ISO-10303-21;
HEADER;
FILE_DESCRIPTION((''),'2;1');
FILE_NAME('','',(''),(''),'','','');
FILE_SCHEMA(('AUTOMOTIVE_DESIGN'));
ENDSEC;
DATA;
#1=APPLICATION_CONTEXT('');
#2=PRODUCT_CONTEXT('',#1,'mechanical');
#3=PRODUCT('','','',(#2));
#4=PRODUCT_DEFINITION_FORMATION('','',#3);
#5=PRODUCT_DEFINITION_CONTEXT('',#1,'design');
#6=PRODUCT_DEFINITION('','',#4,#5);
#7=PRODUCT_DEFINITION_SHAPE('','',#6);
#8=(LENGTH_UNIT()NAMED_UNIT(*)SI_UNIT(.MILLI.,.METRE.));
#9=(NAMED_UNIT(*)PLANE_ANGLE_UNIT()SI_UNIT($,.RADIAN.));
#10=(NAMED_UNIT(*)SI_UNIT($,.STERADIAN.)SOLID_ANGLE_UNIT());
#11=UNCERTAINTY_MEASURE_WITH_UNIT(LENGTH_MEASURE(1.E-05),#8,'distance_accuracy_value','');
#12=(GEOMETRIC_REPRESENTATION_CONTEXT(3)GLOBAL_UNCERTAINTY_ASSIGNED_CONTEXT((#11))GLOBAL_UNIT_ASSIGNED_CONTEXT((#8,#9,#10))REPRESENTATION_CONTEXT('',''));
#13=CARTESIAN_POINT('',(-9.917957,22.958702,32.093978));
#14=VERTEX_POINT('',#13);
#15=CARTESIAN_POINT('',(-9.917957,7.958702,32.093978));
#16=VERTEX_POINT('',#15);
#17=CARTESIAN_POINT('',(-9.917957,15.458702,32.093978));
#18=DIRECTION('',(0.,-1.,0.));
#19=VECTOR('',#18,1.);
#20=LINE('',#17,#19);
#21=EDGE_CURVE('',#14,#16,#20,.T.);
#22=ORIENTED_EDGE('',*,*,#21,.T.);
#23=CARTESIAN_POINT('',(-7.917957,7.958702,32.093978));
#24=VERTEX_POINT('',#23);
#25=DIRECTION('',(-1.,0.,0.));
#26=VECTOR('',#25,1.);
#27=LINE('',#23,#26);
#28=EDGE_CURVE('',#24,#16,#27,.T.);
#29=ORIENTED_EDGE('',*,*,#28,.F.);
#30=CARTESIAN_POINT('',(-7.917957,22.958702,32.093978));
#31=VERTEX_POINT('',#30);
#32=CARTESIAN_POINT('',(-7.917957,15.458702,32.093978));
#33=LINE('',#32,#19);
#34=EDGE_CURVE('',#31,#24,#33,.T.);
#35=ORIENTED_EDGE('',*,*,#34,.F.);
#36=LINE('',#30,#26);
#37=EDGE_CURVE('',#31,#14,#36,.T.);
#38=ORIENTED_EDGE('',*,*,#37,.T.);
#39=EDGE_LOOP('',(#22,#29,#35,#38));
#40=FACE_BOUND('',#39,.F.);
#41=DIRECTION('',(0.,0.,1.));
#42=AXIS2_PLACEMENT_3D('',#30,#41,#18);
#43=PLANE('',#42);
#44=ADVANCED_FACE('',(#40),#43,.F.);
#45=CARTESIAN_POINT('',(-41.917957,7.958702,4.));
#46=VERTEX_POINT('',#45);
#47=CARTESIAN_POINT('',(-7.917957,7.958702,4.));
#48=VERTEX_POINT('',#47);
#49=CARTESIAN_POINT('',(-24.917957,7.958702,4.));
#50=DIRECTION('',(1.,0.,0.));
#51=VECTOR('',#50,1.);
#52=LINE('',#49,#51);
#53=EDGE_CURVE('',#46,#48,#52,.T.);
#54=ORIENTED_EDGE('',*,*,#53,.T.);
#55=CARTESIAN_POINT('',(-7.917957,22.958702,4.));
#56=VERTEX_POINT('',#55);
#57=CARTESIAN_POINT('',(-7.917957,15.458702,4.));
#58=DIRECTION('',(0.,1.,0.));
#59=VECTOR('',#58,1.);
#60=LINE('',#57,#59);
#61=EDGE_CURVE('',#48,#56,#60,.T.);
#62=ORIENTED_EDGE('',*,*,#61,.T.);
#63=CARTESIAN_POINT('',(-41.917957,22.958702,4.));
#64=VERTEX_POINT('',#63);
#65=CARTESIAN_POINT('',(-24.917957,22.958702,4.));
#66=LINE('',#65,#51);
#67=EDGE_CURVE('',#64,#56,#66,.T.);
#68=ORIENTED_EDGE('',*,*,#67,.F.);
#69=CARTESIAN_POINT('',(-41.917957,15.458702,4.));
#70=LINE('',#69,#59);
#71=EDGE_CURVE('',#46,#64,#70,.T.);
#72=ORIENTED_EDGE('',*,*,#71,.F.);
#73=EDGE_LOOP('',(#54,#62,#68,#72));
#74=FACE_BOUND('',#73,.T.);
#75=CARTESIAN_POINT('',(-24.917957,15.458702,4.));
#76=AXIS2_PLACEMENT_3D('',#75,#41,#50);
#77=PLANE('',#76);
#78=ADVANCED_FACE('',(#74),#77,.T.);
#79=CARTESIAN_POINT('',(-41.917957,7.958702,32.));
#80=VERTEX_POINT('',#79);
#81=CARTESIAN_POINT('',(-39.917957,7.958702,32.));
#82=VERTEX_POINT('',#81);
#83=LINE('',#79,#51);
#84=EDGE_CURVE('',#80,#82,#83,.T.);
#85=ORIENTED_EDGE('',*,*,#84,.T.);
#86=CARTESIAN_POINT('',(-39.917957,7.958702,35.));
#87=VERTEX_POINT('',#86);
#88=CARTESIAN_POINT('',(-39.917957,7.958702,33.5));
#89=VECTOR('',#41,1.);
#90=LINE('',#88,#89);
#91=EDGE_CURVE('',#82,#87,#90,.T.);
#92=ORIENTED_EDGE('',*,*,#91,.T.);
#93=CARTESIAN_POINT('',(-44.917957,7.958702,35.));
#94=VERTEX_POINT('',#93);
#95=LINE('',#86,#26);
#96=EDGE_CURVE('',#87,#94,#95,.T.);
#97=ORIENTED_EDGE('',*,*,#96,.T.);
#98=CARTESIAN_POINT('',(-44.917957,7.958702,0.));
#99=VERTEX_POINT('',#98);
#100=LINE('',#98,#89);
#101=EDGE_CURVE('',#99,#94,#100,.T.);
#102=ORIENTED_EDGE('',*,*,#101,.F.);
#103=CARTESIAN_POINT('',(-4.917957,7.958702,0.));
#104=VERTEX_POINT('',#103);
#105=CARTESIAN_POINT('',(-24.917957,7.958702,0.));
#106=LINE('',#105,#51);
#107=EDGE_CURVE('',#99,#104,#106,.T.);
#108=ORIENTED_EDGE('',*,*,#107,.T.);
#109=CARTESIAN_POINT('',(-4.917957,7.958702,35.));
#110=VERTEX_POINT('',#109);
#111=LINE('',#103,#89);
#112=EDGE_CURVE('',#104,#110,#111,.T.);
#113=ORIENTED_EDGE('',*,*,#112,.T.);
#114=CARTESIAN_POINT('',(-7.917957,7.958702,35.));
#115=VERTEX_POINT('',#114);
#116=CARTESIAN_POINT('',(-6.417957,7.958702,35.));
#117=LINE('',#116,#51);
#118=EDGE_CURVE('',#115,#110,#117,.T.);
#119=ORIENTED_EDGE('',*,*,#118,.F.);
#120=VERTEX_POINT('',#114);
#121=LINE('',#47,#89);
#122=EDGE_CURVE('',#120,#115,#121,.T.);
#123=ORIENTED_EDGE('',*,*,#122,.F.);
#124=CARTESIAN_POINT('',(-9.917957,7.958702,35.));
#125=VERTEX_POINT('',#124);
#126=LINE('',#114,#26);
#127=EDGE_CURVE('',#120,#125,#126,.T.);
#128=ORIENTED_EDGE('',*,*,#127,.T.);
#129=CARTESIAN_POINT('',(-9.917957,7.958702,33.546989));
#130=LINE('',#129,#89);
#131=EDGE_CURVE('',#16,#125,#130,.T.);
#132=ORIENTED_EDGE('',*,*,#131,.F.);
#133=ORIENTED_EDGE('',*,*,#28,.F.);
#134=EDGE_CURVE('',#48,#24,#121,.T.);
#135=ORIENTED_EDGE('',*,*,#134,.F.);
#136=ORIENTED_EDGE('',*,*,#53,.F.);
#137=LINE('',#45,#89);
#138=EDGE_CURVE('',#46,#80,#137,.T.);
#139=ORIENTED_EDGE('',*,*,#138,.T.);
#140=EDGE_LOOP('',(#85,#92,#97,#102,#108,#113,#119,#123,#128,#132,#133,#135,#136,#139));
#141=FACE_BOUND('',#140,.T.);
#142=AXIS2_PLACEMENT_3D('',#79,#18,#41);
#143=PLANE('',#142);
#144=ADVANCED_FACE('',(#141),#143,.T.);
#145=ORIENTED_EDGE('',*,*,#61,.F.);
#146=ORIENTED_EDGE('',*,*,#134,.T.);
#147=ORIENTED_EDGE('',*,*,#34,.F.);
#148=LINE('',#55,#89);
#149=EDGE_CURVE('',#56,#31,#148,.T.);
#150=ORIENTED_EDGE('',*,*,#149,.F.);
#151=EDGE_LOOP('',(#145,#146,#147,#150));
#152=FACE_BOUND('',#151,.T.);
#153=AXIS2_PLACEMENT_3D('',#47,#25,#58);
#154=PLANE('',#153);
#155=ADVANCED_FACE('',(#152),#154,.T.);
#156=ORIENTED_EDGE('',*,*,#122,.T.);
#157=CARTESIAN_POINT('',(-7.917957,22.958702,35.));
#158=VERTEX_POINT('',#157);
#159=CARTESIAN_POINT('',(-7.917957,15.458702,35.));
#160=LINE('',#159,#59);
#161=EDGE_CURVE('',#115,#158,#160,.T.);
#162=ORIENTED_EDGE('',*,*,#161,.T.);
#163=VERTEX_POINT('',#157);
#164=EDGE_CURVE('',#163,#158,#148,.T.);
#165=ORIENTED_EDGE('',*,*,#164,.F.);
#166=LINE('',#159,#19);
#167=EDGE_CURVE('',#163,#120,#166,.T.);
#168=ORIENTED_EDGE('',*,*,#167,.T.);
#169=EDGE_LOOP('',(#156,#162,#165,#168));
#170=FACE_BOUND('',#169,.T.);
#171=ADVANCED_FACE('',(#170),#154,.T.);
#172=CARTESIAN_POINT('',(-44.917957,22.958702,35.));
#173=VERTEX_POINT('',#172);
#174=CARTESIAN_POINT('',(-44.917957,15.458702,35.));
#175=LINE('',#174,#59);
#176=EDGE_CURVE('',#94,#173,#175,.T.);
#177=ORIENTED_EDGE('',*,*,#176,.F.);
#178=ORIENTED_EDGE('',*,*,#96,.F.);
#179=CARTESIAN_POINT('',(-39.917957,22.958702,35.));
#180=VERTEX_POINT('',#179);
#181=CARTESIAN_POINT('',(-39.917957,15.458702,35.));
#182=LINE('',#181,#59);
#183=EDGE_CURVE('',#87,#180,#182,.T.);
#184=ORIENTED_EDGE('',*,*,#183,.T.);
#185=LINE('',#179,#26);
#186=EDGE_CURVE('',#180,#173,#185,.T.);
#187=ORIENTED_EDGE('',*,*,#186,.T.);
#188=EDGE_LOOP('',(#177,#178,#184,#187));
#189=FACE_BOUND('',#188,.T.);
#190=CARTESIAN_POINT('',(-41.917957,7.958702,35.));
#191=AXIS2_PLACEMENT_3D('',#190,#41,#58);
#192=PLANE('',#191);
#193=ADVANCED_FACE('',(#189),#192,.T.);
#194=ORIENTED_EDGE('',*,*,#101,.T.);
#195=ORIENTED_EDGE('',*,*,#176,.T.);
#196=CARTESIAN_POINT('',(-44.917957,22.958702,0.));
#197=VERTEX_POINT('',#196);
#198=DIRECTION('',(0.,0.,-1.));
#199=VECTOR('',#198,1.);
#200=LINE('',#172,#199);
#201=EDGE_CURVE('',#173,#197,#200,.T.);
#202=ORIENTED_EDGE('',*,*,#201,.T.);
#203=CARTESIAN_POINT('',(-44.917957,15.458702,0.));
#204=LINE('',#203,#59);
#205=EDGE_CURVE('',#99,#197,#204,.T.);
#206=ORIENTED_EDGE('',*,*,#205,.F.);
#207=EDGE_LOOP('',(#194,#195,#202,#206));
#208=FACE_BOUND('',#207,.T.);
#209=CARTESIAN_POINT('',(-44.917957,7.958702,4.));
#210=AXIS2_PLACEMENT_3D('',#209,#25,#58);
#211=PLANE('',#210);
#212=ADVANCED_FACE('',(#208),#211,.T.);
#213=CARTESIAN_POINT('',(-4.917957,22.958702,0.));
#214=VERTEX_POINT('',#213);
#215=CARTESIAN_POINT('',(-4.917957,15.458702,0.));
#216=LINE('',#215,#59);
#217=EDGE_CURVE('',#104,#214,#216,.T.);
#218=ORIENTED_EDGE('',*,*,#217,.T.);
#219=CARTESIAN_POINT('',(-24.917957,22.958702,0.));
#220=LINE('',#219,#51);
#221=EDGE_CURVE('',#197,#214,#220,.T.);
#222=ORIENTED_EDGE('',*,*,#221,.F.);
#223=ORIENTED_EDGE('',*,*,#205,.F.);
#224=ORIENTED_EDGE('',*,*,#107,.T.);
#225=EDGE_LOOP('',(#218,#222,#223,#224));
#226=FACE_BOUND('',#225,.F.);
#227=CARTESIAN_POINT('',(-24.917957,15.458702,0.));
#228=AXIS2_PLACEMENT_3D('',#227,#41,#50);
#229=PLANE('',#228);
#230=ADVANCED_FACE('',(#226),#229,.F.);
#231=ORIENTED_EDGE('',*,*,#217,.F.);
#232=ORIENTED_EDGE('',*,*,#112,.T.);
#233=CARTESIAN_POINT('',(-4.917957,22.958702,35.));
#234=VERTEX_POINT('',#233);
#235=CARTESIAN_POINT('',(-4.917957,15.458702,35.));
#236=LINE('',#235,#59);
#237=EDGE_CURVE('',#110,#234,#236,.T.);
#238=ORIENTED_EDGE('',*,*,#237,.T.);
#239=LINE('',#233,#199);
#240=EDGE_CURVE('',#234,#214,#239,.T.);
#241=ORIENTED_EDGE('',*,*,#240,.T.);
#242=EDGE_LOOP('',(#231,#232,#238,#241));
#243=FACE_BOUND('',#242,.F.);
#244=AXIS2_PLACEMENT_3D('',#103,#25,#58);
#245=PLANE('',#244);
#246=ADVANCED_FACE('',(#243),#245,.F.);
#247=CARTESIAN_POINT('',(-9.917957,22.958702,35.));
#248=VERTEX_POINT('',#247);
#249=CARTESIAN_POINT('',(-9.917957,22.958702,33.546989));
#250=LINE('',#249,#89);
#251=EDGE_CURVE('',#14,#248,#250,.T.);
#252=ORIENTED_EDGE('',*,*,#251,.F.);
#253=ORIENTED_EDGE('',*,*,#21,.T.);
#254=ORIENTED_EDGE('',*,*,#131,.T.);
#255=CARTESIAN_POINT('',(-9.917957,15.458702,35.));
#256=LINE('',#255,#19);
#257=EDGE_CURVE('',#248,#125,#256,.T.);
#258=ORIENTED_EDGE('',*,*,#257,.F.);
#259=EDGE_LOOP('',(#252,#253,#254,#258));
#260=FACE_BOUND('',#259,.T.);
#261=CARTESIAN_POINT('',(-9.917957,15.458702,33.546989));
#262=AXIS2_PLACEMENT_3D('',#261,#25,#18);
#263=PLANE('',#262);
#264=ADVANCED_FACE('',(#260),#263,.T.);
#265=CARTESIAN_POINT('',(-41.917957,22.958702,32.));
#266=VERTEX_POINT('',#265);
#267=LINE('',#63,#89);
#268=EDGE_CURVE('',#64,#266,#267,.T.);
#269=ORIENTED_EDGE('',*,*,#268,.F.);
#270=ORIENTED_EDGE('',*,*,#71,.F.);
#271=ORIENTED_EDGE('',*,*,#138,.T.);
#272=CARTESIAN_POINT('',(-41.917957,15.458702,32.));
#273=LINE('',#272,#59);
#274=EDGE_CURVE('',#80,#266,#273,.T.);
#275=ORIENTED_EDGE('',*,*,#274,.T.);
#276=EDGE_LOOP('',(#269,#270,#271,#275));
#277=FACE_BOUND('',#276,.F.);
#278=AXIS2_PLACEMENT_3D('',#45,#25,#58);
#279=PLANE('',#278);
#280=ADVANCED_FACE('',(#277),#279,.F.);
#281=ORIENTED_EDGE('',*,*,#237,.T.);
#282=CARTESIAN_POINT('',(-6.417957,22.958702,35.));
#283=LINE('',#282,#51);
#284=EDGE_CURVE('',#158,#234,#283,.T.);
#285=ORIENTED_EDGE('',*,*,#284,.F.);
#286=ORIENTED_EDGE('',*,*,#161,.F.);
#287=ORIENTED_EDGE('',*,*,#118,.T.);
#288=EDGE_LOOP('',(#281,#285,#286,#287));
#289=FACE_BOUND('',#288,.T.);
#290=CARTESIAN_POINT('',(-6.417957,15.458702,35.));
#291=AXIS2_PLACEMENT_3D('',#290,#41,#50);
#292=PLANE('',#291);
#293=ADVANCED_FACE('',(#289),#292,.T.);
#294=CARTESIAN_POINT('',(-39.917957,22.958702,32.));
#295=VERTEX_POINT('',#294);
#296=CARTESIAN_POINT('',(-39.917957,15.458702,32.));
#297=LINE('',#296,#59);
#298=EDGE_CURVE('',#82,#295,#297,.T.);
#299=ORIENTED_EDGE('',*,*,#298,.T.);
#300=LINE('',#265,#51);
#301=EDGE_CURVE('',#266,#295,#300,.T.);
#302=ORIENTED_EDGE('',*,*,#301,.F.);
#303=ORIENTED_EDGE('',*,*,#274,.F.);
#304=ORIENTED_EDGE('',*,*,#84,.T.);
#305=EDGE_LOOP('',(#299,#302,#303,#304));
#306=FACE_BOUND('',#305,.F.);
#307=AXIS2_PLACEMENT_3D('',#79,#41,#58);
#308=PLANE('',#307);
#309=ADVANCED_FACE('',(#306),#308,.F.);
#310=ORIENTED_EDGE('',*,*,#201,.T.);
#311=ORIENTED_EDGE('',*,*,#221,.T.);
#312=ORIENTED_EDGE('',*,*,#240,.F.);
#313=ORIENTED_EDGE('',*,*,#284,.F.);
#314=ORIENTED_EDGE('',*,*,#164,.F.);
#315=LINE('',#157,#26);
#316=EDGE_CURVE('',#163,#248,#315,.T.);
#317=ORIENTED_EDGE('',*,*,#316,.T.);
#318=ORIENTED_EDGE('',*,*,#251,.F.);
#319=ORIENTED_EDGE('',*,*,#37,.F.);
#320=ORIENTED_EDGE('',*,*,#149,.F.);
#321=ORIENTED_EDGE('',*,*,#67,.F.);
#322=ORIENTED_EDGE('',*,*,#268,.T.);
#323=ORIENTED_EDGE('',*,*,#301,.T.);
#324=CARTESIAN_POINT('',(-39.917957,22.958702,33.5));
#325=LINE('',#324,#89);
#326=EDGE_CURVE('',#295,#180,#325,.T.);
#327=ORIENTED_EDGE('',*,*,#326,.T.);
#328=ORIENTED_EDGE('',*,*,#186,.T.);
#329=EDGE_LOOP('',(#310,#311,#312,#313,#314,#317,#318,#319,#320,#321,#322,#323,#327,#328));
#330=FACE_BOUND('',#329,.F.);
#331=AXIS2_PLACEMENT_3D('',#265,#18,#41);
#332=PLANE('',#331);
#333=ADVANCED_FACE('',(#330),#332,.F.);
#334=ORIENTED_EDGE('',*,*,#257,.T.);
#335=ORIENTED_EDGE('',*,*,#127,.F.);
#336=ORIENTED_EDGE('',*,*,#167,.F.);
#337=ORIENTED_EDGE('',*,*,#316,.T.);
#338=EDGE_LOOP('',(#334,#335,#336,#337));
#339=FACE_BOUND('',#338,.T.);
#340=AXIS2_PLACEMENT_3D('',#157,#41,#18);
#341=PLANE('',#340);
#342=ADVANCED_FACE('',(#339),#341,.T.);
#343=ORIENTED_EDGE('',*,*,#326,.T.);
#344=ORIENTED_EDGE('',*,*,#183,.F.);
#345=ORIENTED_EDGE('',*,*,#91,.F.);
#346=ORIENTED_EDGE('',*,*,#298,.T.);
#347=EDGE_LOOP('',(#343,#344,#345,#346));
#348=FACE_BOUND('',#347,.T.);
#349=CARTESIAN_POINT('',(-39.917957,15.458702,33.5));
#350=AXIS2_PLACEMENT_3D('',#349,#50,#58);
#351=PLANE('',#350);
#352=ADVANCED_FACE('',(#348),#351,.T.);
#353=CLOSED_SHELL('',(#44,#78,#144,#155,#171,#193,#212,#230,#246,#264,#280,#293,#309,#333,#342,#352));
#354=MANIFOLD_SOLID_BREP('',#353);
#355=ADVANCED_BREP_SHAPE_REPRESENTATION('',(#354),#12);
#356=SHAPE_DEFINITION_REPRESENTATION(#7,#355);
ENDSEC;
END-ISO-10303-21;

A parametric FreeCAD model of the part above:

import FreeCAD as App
import Part
import Sketcher
from FreeCAD import Vector
Q = App.Units.Quantity

doc = App.newDocument("Part")
body = doc.addObject("PartDesign::Body", "Body")

# Sketch on XY plane
sketch1 = body.newObject("Sketcher::SketchObject", "Sketch")
sketch1.AttachmentSupport = (doc.getObject("XY_Plane"), [""])
sketch1.MapMode = "FlatFace"
sketch1.addGeometry([
    Part.LineSegment(Vector(-44.917957, 22.958702, 0), Vector(-44.917957, 7.958702, 0)),
    Part.LineSegment(Vector(-44.917957, 7.958702, 0), Vector(-4.917957, 7.958702, 0)),
    Part.LineSegment(Vector(-4.917957, 7.958702, 0), Vector(-4.917957, 22.958702, 0)),
    Part.LineSegment(Vector(-4.917957, 22.958702, 0), Vector(-44.917957, 22.958702, 0)),
], False)
sketch1.addConstraint([
    Sketcher.Constraint("Coincident", 0, 2, 1, 1),
    Sketcher.Constraint("Coincident", 1, 2, 2, 1),
    Sketcher.Constraint("Coincident", 2, 2, 3, 1),
    Sketcher.Constraint("Coincident", 3, 2, 0, 1),
    Sketcher.Constraint("Vertical", 0),
    Sketcher.Constraint("Horizontal", 1),
    Sketcher.Constraint("Vertical", 2),
    Sketcher.Constraint("Horizontal", 3),
    Sketcher.Constraint("DistanceX", 1, 1, 1, 2, Q("40 mm")),
    Sketcher.Constraint("DistanceY", 0, 2, 0, 1, Q("15 mm")),
    Sketcher.Constraint("DistanceY", -1, 1, 0, 2, Q("7.958702 mm")),
    Sketcher.Constraint("DistanceX", 0, 2, -1, 1, Q("44.917957 mm")),
])
pad1 = body.newObject("PartDesign::Pad", "Pad")
pad1.Profile = sketch1
pad1.Length = 4

# Sketch on XY plane
sketch2 = body.newObject("Sketcher::SketchObject", "Sketch001")
sketch2.AttachmentSupport = (doc.getObject("XY_Plane"), [""])
sketch2.MapMode = "FlatFace"
sketch2.AttachmentOffset = App.Placement(Vector(0, 0, 4), App.Rotation())
sketch2.addGeometry([
    Part.LineSegment(Vector(-44.917957, 22.958702, 0), Vector(-44.917957, 7.958702, 0)),  # 0
    Part.LineSegment(Vector(-44.917957, 7.958702, 0), Vector(-41.917957, 7.958702, 0)),  # 1
    Part.LineSegment(Vector(-41.917957, 7.958702, 0), Vector(-41.917957, 22.958702, 0)),  # 2
    Part.LineSegment(Vector(-41.917957, 22.958702, 0), Vector(-44.917957, 22.958702, 0)),  # 3
    Part.LineSegment(Vector(-7.917957, 22.958702, 0), Vector(-7.917957, 7.958702, 0)),  # 4
    Part.LineSegment(Vector(-7.917957, 7.958702, 0), Vector(-4.917957, 7.958702, 0)),  # 5
    Part.LineSegment(Vector(-4.917957, 7.958702, 0), Vector(-4.917957, 22.958702, 0)),  # 6
    Part.LineSegment(Vector(-4.917957, 22.958702, 0), Vector(-7.917957, 22.958702, 0)),  # 7
], False)
sketch2.addConstraint([
    Sketcher.Constraint("Coincident", 0, 2, 1, 1),
    Sketcher.Constraint("Coincident", 1, 2, 2, 1),
    Sketcher.Constraint("Coincident", 2, 2, 3, 1),
    Sketcher.Constraint("Coincident", 3, 2, 0, 1),
    Sketcher.Constraint("Coincident", 4, 2, 5, 1),
    Sketcher.Constraint("Coincident", 5, 2, 6, 1),
    Sketcher.Constraint("Coincident", 6, 2, 7, 1),
    Sketcher.Constraint("Coincident", 7, 2, 4, 1),
    Sketcher.Constraint("Vertical", 0),
    Sketcher.Constraint("Horizontal", 1),
    Sketcher.Constraint("Vertical", 2),
    Sketcher.Constraint("Horizontal", 3),
    Sketcher.Constraint("Vertical", 4),
    Sketcher.Constraint("Horizontal", 5),
    Sketcher.Constraint("Vertical", 6),
    Sketcher.Constraint("Horizontal", 7),
    Sketcher.Constraint("Horizontal", 1, 2, 4, 2),
    Sketcher.Constraint("Horizontal", 3, 2, 6, 2),
    Sketcher.Constraint("Equal", 3, 5),
    Sketcher.Constraint("DistanceX", 1, 1, 1, 2, Q("3 mm")),
    Sketcher.Constraint("DistanceY", 0, 2, 0, 1, Q("15 mm")),
    Sketcher.Constraint("DistanceX", 1, 2, 4, 2, Q("34 mm")),
    Sketcher.Constraint("DistanceY", -1, 1, 0, 2, Q("7.958702 mm")),
    Sketcher.Constraint("DistanceX", 0, 2, -1, 1, Q("44.917957 mm")),
])
pad2 = body.newObject("PartDesign::Pad", "Pad001")
pad2.Profile = sketch2
pad2.Length = 31

# Sketch on YZ plane
sketch3 = body.newObject("Sketcher::SketchObject", "Sketch002")
sketch3.AttachmentSupport = (doc.getObject("YZ_Plane"), [""])
sketch3.MapMode = "FlatFace"
sketch3.AttachmentOffset = App.Placement(Vector(0, 0, -41.917957), App.Rotation())
sketch3.addGeometry([
    Part.LineSegment(Vector(7.958702, 35, 0), Vector(7.958702, 32, 0)),
    Part.LineSegment(Vector(7.958702, 32, 0), Vector(22.958702, 32, 0)),
    Part.LineSegment(Vector(22.958702, 32, 0), Vector(22.958702, 35, 0)),
    Part.LineSegment(Vector(22.958702, 35, 0), Vector(7.958702, 35, 0)),
], False)
sketch3.addConstraint([
    Sketcher.Constraint("Coincident", 0, 2, 1, 1),
    Sketcher.Constraint("Coincident", 1, 2, 2, 1),
    Sketcher.Constraint("Coincident", 2, 2, 3, 1),
    Sketcher.Constraint("Coincident", 3, 2, 0, 1),
    Sketcher.Constraint("Vertical", 0),
    Sketcher.Constraint("Horizontal", 1),
    Sketcher.Constraint("Vertical", 2),
    Sketcher.Constraint("Horizontal", 3),
    Sketcher.Constraint("DistanceX", 1, 1, 1, 2, Q("15 mm")),
    Sketcher.Constraint("DistanceY", 0, 2, 0, 1, Q("3 mm")),
    Sketcher.Constraint("DistanceY", -1, 1, 0, 2, Q("32 mm")),
    Sketcher.Constraint("DistanceX", -1, 1, 0, 2, Q("7.958702 mm")),
])
pad3 = body.newObject("PartDesign::Pad", "Pad002")
pad3.Profile = sketch3
pad3.Length = 2

# Sketch on YZ plane
sketch4 = body.newObject("Sketcher::SketchObject", "Sketch003")
sketch4.AttachmentSupport = (doc.getObject("YZ_Plane"), [""])
sketch4.MapMode = "FlatFace"
sketch4.AttachmentOffset = App.Placement(Vector(0, 0, -7.917957), App.Rotation())
sketch4.addGeometry([
    Part.LineSegment(Vector(22.958702, 35, 0), Vector(22.958702, 32.093978, 0)),
    Part.LineSegment(Vector(22.958702, 32.093978, 0), Vector(7.958702, 32.093978, 0)),
    Part.LineSegment(Vector(7.958702, 32.093978, 0), Vector(7.958702, 35, 0)),
    Part.LineSegment(Vector(7.958702, 35, 0), Vector(22.958702, 35, 0)),
], False)
sketch4.addConstraint([
    Sketcher.Constraint("Coincident", 0, 2, 1, 1),
    Sketcher.Constraint("Coincident", 1, 2, 2, 1),
    Sketcher.Constraint("Coincident", 2, 2, 3, 1),
    Sketcher.Constraint("Coincident", 3, 2, 0, 1),
    Sketcher.Constraint("Vertical", 0),
    Sketcher.Constraint("Horizontal", 1),
    Sketcher.Constraint("Vertical", 2),
    Sketcher.Constraint("Horizontal", 3),
    Sketcher.Constraint("DistanceX", 1, 2, 1, 1, Q("15 mm")),
    Sketcher.Constraint("DistanceY", -1, 1, 2, 2, Q("35 mm")),
    Sketcher.Constraint("DistanceY", 0, 2, 0, 1, Q("2.906021 mm")),
    Sketcher.Constraint("DistanceX", -1, 1, 0, 2, Q("22.958702 mm")),
])
pad4 = body.newObject("PartDesign::Pad", "Pad003")
pad4.Profile = sketch4
pad4.Length = 2
pad4.Reversed = True

doc.recompute()
